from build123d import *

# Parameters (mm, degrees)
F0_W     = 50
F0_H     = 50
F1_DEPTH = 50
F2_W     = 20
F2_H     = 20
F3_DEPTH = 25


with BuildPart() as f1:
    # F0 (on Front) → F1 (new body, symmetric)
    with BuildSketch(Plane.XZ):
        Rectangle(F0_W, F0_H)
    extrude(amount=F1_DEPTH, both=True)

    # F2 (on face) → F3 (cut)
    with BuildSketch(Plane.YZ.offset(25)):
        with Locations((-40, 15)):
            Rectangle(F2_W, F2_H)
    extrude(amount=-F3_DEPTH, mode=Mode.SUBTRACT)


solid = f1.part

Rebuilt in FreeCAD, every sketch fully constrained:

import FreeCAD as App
import Part
import Sketcher
Q = App.Units.Quantity


def add_polygon(sketch, points):
    """Adds a closed chain of lines whose ends are joined by coincident constraints."""
    first, n = sketch.GeometryCount, len(points)
    for a, b in zip(points, points[1:] + points[:1]):
        sketch.addGeometry(Part.LineSegment(App.Vector(*a, 0), App.Vector(*b, 0)), False)
    for i in range(n):
        sketch.addConstraint(Sketcher.Constraint("Coincident", first + i, 2, first + (i + 1) % n, 1))

doc = App.newDocument("Part")
params = doc.addObject("Spreadsheet::Sheet", "Params")
for row, (alias, value) in enumerate([
    ("sketch1_width", "50 mm"),
    ("pad1_length", "100 mm"),
    ("sketch2_width", "20 mm"),
    ("pocket1_length", "25 mm"),
], start=1):
    params.set(f"A{row}", alias)
    params.set(f"B{row}", "=" + value)
    params.setAlias(f"B{row}", alias)

body = doc.addObject("PartDesign::Body", "Body")

sketch1 = body.newObject("Sketcher::SketchObject", "Sketch")
sketch1.AttachmentSupport = (doc.getObject("XZ_Plane"), [""])
sketch1.MapMode = "FlatFace"
add_polygon(sketch1, [(-25, 25), (-25, -25), (25, -25), (25, 25)])
sketch1.addConstraint(Sketcher.Constraint("Vertical", 0))
sketch1.addConstraint(Sketcher.Constraint("Horizontal", 1))
sketch1.addConstraint(Sketcher.Constraint("Vertical", 2))
sketch1.addConstraint(Sketcher.Constraint("Horizontal", 3))
sketch1.addConstraint(Sketcher.Constraint("Symmetric", 0, 2, 2, 2, -1, 1))
sketch1.addConstraint(Sketcher.Constraint("Equal", 3, 0))
sketch1.addConstraint(Sketcher.Constraint("DistanceX", 1, 1, 1, 2, Q("50 mm")))
sketch1.setExpression("Constraints[10]", "Params.sketch1_width")
pad1 = body.newObject("PartDesign::Pad", "Pad")
pad1.Profile = sketch1
pad1.setExpression("Length", "Params.pad1_length")
pad1.Midplane = True

sketch2 = body.newObject("Sketcher::SketchObject", "Sketch001")
sketch2.AttachmentSupport = (doc.getObject("YZ_Plane"), [""])
sketch2.MapMode = "FlatFace"
sketch2.AttachmentOffset = App.Placement(App.Vector(0, 0, 25), App.Rotation())
add_polygon(sketch2, [(-50, 25), (-50, 5), (-30, 5), (-30, 25)])
sketch2.addConstraint(Sketcher.Constraint("Vertical", 0))
sketch2.addConstraint(Sketcher.Constraint("Horizontal", 1))
sketch2.addConstraint(Sketcher.Constraint("Vertical", 2))
sketch2.addConstraint(Sketcher.Constraint("Horizontal", 3))
sketch2.addConstraint(Sketcher.Constraint("Equal", 3, 0))
sketch2.addConstraint(Sketcher.Constraint("DistanceX", 1, 1, 1, 2, Q("20 mm")))
sketch2.addConstraint(Sketcher.Constraint("DistanceX", 0, 2, -1, 1, Q("50 mm")))
sketch2.addConstraint(Sketcher.Constraint("DistanceY", -1, 1, 0, 2, Q("5 mm")))
sketch2.setExpression("Constraints[9]", "Params.sketch2_width")
pocket1 = body.newObject("PartDesign::Pocket", "Pocket")
pocket1.Profile = sketch2
pocket1.setExpression("Length", "Params.pocket1_length")

doc.recompute()
